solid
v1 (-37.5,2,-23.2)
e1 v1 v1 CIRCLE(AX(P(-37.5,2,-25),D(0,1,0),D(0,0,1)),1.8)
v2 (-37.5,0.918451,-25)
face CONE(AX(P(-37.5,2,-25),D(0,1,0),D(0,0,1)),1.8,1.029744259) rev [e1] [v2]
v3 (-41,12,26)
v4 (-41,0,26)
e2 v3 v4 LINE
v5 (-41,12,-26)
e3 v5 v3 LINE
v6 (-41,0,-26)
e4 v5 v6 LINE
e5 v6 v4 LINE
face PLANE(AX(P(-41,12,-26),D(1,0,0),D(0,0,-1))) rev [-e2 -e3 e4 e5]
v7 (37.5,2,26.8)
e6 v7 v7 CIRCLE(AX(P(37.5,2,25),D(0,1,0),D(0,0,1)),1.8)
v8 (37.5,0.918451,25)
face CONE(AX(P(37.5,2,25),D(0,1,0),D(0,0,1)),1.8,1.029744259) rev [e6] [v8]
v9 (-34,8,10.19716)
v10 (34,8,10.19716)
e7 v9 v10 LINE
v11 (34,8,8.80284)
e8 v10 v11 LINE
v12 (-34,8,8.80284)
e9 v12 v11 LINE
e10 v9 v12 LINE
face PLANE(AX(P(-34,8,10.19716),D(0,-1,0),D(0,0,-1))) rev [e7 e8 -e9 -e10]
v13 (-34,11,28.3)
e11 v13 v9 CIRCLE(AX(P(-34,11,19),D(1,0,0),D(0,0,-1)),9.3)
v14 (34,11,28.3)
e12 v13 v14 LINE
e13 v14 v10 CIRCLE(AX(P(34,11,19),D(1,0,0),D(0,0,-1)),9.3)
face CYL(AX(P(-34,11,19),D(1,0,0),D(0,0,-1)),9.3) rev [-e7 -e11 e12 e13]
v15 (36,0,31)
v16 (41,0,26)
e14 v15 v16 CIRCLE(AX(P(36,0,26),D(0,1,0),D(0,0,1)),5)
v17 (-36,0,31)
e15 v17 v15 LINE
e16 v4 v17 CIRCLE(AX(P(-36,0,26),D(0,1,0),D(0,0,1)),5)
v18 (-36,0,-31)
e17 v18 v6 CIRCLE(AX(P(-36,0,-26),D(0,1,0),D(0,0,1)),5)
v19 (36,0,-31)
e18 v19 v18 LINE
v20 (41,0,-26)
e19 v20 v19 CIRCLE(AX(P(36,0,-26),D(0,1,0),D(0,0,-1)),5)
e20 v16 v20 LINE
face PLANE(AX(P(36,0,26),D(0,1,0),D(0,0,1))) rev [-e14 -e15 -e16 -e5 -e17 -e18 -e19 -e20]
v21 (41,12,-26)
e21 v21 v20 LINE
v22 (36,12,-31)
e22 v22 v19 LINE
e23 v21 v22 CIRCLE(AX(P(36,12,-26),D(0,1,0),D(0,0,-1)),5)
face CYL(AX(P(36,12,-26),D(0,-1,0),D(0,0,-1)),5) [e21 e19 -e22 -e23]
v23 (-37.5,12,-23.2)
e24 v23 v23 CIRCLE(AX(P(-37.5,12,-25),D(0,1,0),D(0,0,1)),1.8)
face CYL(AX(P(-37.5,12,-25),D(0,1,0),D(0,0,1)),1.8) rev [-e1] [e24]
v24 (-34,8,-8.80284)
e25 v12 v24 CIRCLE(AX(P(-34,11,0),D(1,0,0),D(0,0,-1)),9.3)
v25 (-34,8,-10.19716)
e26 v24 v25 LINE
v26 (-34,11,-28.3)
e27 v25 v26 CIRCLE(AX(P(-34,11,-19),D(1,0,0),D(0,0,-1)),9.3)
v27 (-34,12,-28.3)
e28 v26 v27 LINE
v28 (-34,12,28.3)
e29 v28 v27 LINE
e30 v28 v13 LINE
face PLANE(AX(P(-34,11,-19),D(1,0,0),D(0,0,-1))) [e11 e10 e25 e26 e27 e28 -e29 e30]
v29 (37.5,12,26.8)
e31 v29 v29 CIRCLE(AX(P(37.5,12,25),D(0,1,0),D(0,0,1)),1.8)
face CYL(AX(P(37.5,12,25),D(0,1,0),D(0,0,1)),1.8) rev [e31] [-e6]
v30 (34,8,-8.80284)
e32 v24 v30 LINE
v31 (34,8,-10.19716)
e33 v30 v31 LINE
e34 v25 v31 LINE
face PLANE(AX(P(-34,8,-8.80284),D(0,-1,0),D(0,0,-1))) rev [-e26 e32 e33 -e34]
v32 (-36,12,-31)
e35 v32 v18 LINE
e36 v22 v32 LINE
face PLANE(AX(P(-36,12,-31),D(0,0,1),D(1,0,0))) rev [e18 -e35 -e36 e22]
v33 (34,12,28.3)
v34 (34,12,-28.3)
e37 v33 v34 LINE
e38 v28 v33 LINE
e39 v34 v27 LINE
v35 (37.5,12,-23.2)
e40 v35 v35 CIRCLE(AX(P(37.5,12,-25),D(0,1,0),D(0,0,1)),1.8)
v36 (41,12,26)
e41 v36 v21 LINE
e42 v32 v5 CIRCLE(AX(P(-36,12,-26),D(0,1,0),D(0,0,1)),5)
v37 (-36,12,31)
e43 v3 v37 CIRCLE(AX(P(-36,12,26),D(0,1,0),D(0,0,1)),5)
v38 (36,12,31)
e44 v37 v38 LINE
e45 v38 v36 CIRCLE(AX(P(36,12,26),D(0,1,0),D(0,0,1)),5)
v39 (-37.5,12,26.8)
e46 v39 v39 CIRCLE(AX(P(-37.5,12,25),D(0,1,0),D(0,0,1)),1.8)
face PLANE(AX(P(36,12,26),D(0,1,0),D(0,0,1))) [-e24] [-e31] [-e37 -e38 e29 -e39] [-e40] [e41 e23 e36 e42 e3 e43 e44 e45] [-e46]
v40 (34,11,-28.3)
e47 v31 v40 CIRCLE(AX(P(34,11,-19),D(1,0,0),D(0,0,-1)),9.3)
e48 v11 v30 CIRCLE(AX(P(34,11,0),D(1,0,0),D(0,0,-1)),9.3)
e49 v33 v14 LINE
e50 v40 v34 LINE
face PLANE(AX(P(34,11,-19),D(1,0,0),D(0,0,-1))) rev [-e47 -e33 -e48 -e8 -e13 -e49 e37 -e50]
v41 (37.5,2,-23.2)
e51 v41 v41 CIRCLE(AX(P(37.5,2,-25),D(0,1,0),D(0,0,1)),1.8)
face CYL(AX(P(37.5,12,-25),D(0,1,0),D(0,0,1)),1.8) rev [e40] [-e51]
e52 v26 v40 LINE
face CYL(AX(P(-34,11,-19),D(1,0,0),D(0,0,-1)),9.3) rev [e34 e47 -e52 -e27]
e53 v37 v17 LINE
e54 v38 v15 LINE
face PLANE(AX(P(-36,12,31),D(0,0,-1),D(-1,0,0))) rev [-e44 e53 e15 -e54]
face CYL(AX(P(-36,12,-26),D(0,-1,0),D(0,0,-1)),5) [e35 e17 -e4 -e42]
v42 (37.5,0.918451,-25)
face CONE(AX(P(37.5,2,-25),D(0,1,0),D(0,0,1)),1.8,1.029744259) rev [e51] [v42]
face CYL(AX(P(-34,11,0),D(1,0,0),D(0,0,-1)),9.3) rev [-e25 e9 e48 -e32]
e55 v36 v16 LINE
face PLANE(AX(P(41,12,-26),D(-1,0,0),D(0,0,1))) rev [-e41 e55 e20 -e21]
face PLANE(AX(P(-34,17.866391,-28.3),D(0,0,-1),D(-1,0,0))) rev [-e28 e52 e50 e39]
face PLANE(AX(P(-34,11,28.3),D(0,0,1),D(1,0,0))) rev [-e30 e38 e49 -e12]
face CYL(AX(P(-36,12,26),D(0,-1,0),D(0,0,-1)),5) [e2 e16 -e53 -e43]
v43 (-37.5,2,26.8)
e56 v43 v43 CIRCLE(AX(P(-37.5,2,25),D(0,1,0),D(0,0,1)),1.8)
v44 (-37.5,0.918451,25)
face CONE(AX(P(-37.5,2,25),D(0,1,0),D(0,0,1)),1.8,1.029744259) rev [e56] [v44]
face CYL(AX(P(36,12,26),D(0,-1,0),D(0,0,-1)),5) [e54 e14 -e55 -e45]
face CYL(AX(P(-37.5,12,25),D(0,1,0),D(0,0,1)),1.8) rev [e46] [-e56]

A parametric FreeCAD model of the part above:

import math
import FreeCAD as App
import Part
import Sketcher
Q = App.Units.Quantity

doc = App.newDocument("Part")
body = doc.addObject("PartDesign::Body", "Body")

# Sketch on XZ plane
sketch1 = doc.addObject("Sketcher::SketchObject", "Sketch")
body.addObject(sketch1)
sketch1.AttachmentSupport = (doc.XZ_Plane, [""])
sketch1.MapMode = "FlatFace"
sketch1.addGeometry(Part.LineSegment(App.Vector(36, -31, 0), App.Vector(-36, -31, 0)), False)
sketch1.addGeometry(Part.ArcOfCircle(Part.Circle(App.Vector(-36, -26, 0), App.Vector(0, 0, 1), 5), math.radians(180), math.radians(270)), False)
sketch1.addGeometry(Part.LineSegment(App.Vector(-41, -26, 0), App.Vector(-41, 26, 0)), False)
sketch1.addGeometry(Part.ArcOfCircle(Part.Circle(App.Vector(-36, 26, 0), App.Vector(0, 0, 1), 5), math.radians(90), math.radians(180)), False)
sketch1.addGeometry(Part.LineSegment(App.Vector(-36, 31, 0), App.Vector(36, 31, 0)), False)
sketch1.addGeometry(Part.ArcOfCircle(Part.Circle(App.Vector(36, 26, 0), App.Vector(0, 0, 1), 5), math.radians(0), math.radians(90)), False)
sketch1.addGeometry(Part.LineSegment(App.Vector(41, 26, 0), App.Vector(41, -26, 0)), False)
sketch1.addGeometry(Part.ArcOfCircle(Part.Circle(App.Vector(36, -26, 0), App.Vector(0, 0, 1), 5), math.radians(-90), math.radians(0)), False)
sketch1.addConstraint(Sketcher.Constraint("Tangent", 0, 2, 1, 2))
sketch1.addConstraint(Sketcher.Constraint("Tangent", 1, 1, 2, 1))
sketch1.addConstraint(Sketcher.Constraint("Tangent", 2, 2, 3, 2))
sketch1.addConstraint(Sketcher.Constraint("Tangent", 3, 1, 4, 1))
sketch1.addConstraint(Sketcher.Constraint("Tangent", 4, 2, 5, 2))
sketch1.addConstraint(Sketcher.Constraint("Tangent", 5, 1, 6, 1))
sketch1.addConstraint(Sketcher.Constraint("Tangent", 6, 2, 7, 2))
sketch1.addConstraint(Sketcher.Constraint("Tangent", 7, 1, 0, 1))
sketch1.addConstraint(Sketcher.Constraint("Horizontal", 0))
sketch1.addConstraint(Sketcher.Constraint("Vertical", 2))
sketch1.addConstraint(Sketcher.Constraint("Horizontal", 4))
sketch1.addConstraint(Sketcher.Constraint("Vertical", 6))
sketch1.addConstraint(Sketcher.Constraint("Equal", 1, 3))
sketch1.addConstraint(Sketcher.Constraint("Equal", 3, 5))
sketch1.addConstraint(Sketcher.Constraint("Equal", 5, 7))
sketch1.addConstraint(Sketcher.Constraint("Symmetric", 1, 3, 5, 3, -1, 1))
sketch1.addConstraint(Sketcher.Constraint("Radius", 1, Q("5 mm")))
sketch1.addConstraint(Sketcher.Constraint("DistanceX", 0, 2, 0, 1, Q("72 mm")))
sketch1.addConstraint(Sketcher.Constraint("DistanceY", 2, 1, 2, 2, Q("52 mm")))
pad1 = doc.addObject("PartDesign::Pad", "Pad")
body.addObject(pad1)
pad1.Profile = sketch1
pad1.Length = 12
pad1.Reversed = True

# Sketch on YZ plane
sketch2 = doc.addObject("Sketcher::SketchObject", "Sketch001")
body.addObject(sketch2)
sketch2.AttachmentSupport = (doc.YZ_Plane, [""])
sketch2.MapMode = "FlatFace"
sketch2.addGeometry(Part.LineSegment(App.Vector(8, 10.19716, 0), App.Vector(8, 8.80284, 0)), False)
sketch2.addGeometry(Part.ArcOfCircle(Part.Circle(App.Vector(11, 0, 0), App.Vector(0, 0, 1), 9.3), math.radians(108.819063), math.radians(251.180937)), False)
sketch2.addGeometry(Part.LineSegment(App.Vector(8, -8.80284, 0), App.Vector(8, -10.19716, 0)), False)
sketch2.addGeometry(Part.ArcOfCircle(Part.Circle(App.Vector(11, -19, 0), App.Vector(0, 0, 1), 9.3), math.radians(108.819063), math.radians(270)), False)
sketch2.addGeometry(Part.LineSegment(App.Vector(11, -28.3, 0), App.Vector(17.866391, -28.3, 0)), False)
sketch2.addGeometry(Part.LineSegment(App.Vector(17.866391, -28.3, 0), App.Vector(17.866391, 28.3, 0)), False)
sketch2.addGeometry(Part.LineSegment(App.Vector(17.866391, 28.3, 0), App.Vector(11, 28.3, 0)), False)
sketch2.addGeometry(Part.ArcOfCircle(Part.Circle(App.Vector(11, 19, 0), App.Vector(0, 0, 1), 9.3), math.radians(90), math.radians(251.180937)), False)
sketch2.addConstraint(Sketcher.Constraint("Coincident", 0, 2, 1, 1))
sketch2.addConstraint(Sketcher.Constraint("Coincident", 1, 2, 2, 1))
sketch2.addConstraint(Sketcher.Constraint("Coincident", 2, 2, 3, 1))
sketch2.addConstraint(Sketcher.Constraint("Tangent", 3, 2, 4, 1))
sketch2.addConstraint(Sketcher.Constraint("Coincident", 4, 2, 5, 1))
sketch2.addConstraint(Sketcher.Constraint("Coincident", 5, 2, 6, 1))
sketch2.addConstraint(Sketcher.Constraint("Tangent", 6, 2, 7, 1))
sketch2.addConstraint(Sketcher.Constraint("Coincident", 7, 2, 0, 1))
sketch2.addConstraint(Sketcher.Constraint("Vertical", 0))
sketch2.addConstraint(Sketcher.Constraint("Vertical", 2))
sketch2.addConstraint(Sketcher.Constraint("Horizontal", 4))
sketch2.addConstraint(Sketcher.Constraint("Vertical", 5))
sketch2.addConstraint(Sketcher.Constraint("Horizontal", 6))
sketch2.addConstraint(Sketcher.Constraint("Equal", 1, 3))
sketch2.addConstraint(Sketcher.Constraint("Equal", 3, 7))
sketch2.addConstraint(Sketcher.Constraint("Symmetric", 3, 3, 7, 3, -1))
sketch2.addConstraint(Sketcher.Constraint("Symmetric", 0, 2, 1, 2, -1))
sketch2.addConstraint(Sketcher.Constraint("Vertical", 1, 3, 3, 3))
sketch2.addConstraint(Sketcher.Constraint("Radius", 1, Q("9.3 mm")))
sketch2.addConstraint(Sketcher.Constraint("DistanceY", 5, 1, 5, 2, Q("56.6 mm")))
sketch2.addConstraint(Sketcher.Constraint("DistanceX", -1, 1, 1, 3, Q("11 mm")))
sketch2.addConstraint(Sketcher.Constraint("DistanceX", -1, 1, 0, 2, Q("8 mm")))
sketch2.addConstraint(Sketcher.Constraint("DistanceX", 4, 1, 4, 2, Q("6.866391 mm")))
pocket1 = doc.addObject("PartDesign::Pocket", "Pocket")
body.addObject(pocket1)
pocket1.Profile = sketch2
pocket1.Length = 68
pocket1.Midplane = True

# Sketch on XZ plane
sketch3 = doc.addObject("Sketcher::SketchObject", "Sketch002")
body.addObject(sketch3)
sketch3.AttachmentSupport = (doc.XZ_Plane, [""])
sketch3.MapMode = "FlatFace"
sketch3.AttachmentOffset = App.Placement(App.Vector(0, 0, -12), App.Rotation())
sketch3.addGeometry(Part.Circle(App.Vector(-37.5, -25, 0), App.Vector(0, 0, 1), 1.8), False)
sketch3.addGeometry(Part.Circle(App.Vector(-37.5, 25, 0), App.Vector(0, 0, 1), 1.8), False)
sketch3.addGeometry(Part.Circle(App.Vector(37.5, 25, 0), App.Vector(0, 0, 1), 1.8), False)
sketch3.addGeometry(Part.Circle(App.Vector(37.5, -25, 0), App.Vector(0, 0, 1), 1.8), False)
sketch3.addConstraint(Sketcher.Constraint("Equal", 0, 1))
sketch3.addConstraint(Sketcher.Constraint("Equal", 1, 2))
sketch3.addConstraint(Sketcher.Constraint("Equal", 2, 3))
sketch3.addConstraint(Sketcher.Constraint("Symmetric", 0, 3, 2, 3, -1, 1))
sketch3.addConstraint(Sketcher.Constraint("Symmetric", 1, 3, 3, 3, -1, 1))
sketch3.addConstraint(Sketcher.Constraint("Symmetric", 1, 3, 2, 3, -2))
sketch3.addConstraint(Sketcher.Constraint("Diameter", 0, Q("3.6 mm")))
sketch3.addConstraint(Sketcher.Constraint("DistanceY", 0, 3, -1, 1, Q("25 mm")))
sketch3.addConstraint(Sketcher.Constraint("DistanceX", 1, 3, 2, 3, Q("75 mm")))
doc.recompute()
hole = doc.addObject("PartDesign::Hole", "Hole")
body.addObject(hole)
hole.Profile = sketch3
hole.ThreadType = "None"
hole.Diameter = 3.6
hole.DepthType = "Dimension"
hole.Depth = 10
hole.DrillPoint = "Angled"
hole.DrillPointAngle = 118
hole.Reversed = True

doc.recompute()
